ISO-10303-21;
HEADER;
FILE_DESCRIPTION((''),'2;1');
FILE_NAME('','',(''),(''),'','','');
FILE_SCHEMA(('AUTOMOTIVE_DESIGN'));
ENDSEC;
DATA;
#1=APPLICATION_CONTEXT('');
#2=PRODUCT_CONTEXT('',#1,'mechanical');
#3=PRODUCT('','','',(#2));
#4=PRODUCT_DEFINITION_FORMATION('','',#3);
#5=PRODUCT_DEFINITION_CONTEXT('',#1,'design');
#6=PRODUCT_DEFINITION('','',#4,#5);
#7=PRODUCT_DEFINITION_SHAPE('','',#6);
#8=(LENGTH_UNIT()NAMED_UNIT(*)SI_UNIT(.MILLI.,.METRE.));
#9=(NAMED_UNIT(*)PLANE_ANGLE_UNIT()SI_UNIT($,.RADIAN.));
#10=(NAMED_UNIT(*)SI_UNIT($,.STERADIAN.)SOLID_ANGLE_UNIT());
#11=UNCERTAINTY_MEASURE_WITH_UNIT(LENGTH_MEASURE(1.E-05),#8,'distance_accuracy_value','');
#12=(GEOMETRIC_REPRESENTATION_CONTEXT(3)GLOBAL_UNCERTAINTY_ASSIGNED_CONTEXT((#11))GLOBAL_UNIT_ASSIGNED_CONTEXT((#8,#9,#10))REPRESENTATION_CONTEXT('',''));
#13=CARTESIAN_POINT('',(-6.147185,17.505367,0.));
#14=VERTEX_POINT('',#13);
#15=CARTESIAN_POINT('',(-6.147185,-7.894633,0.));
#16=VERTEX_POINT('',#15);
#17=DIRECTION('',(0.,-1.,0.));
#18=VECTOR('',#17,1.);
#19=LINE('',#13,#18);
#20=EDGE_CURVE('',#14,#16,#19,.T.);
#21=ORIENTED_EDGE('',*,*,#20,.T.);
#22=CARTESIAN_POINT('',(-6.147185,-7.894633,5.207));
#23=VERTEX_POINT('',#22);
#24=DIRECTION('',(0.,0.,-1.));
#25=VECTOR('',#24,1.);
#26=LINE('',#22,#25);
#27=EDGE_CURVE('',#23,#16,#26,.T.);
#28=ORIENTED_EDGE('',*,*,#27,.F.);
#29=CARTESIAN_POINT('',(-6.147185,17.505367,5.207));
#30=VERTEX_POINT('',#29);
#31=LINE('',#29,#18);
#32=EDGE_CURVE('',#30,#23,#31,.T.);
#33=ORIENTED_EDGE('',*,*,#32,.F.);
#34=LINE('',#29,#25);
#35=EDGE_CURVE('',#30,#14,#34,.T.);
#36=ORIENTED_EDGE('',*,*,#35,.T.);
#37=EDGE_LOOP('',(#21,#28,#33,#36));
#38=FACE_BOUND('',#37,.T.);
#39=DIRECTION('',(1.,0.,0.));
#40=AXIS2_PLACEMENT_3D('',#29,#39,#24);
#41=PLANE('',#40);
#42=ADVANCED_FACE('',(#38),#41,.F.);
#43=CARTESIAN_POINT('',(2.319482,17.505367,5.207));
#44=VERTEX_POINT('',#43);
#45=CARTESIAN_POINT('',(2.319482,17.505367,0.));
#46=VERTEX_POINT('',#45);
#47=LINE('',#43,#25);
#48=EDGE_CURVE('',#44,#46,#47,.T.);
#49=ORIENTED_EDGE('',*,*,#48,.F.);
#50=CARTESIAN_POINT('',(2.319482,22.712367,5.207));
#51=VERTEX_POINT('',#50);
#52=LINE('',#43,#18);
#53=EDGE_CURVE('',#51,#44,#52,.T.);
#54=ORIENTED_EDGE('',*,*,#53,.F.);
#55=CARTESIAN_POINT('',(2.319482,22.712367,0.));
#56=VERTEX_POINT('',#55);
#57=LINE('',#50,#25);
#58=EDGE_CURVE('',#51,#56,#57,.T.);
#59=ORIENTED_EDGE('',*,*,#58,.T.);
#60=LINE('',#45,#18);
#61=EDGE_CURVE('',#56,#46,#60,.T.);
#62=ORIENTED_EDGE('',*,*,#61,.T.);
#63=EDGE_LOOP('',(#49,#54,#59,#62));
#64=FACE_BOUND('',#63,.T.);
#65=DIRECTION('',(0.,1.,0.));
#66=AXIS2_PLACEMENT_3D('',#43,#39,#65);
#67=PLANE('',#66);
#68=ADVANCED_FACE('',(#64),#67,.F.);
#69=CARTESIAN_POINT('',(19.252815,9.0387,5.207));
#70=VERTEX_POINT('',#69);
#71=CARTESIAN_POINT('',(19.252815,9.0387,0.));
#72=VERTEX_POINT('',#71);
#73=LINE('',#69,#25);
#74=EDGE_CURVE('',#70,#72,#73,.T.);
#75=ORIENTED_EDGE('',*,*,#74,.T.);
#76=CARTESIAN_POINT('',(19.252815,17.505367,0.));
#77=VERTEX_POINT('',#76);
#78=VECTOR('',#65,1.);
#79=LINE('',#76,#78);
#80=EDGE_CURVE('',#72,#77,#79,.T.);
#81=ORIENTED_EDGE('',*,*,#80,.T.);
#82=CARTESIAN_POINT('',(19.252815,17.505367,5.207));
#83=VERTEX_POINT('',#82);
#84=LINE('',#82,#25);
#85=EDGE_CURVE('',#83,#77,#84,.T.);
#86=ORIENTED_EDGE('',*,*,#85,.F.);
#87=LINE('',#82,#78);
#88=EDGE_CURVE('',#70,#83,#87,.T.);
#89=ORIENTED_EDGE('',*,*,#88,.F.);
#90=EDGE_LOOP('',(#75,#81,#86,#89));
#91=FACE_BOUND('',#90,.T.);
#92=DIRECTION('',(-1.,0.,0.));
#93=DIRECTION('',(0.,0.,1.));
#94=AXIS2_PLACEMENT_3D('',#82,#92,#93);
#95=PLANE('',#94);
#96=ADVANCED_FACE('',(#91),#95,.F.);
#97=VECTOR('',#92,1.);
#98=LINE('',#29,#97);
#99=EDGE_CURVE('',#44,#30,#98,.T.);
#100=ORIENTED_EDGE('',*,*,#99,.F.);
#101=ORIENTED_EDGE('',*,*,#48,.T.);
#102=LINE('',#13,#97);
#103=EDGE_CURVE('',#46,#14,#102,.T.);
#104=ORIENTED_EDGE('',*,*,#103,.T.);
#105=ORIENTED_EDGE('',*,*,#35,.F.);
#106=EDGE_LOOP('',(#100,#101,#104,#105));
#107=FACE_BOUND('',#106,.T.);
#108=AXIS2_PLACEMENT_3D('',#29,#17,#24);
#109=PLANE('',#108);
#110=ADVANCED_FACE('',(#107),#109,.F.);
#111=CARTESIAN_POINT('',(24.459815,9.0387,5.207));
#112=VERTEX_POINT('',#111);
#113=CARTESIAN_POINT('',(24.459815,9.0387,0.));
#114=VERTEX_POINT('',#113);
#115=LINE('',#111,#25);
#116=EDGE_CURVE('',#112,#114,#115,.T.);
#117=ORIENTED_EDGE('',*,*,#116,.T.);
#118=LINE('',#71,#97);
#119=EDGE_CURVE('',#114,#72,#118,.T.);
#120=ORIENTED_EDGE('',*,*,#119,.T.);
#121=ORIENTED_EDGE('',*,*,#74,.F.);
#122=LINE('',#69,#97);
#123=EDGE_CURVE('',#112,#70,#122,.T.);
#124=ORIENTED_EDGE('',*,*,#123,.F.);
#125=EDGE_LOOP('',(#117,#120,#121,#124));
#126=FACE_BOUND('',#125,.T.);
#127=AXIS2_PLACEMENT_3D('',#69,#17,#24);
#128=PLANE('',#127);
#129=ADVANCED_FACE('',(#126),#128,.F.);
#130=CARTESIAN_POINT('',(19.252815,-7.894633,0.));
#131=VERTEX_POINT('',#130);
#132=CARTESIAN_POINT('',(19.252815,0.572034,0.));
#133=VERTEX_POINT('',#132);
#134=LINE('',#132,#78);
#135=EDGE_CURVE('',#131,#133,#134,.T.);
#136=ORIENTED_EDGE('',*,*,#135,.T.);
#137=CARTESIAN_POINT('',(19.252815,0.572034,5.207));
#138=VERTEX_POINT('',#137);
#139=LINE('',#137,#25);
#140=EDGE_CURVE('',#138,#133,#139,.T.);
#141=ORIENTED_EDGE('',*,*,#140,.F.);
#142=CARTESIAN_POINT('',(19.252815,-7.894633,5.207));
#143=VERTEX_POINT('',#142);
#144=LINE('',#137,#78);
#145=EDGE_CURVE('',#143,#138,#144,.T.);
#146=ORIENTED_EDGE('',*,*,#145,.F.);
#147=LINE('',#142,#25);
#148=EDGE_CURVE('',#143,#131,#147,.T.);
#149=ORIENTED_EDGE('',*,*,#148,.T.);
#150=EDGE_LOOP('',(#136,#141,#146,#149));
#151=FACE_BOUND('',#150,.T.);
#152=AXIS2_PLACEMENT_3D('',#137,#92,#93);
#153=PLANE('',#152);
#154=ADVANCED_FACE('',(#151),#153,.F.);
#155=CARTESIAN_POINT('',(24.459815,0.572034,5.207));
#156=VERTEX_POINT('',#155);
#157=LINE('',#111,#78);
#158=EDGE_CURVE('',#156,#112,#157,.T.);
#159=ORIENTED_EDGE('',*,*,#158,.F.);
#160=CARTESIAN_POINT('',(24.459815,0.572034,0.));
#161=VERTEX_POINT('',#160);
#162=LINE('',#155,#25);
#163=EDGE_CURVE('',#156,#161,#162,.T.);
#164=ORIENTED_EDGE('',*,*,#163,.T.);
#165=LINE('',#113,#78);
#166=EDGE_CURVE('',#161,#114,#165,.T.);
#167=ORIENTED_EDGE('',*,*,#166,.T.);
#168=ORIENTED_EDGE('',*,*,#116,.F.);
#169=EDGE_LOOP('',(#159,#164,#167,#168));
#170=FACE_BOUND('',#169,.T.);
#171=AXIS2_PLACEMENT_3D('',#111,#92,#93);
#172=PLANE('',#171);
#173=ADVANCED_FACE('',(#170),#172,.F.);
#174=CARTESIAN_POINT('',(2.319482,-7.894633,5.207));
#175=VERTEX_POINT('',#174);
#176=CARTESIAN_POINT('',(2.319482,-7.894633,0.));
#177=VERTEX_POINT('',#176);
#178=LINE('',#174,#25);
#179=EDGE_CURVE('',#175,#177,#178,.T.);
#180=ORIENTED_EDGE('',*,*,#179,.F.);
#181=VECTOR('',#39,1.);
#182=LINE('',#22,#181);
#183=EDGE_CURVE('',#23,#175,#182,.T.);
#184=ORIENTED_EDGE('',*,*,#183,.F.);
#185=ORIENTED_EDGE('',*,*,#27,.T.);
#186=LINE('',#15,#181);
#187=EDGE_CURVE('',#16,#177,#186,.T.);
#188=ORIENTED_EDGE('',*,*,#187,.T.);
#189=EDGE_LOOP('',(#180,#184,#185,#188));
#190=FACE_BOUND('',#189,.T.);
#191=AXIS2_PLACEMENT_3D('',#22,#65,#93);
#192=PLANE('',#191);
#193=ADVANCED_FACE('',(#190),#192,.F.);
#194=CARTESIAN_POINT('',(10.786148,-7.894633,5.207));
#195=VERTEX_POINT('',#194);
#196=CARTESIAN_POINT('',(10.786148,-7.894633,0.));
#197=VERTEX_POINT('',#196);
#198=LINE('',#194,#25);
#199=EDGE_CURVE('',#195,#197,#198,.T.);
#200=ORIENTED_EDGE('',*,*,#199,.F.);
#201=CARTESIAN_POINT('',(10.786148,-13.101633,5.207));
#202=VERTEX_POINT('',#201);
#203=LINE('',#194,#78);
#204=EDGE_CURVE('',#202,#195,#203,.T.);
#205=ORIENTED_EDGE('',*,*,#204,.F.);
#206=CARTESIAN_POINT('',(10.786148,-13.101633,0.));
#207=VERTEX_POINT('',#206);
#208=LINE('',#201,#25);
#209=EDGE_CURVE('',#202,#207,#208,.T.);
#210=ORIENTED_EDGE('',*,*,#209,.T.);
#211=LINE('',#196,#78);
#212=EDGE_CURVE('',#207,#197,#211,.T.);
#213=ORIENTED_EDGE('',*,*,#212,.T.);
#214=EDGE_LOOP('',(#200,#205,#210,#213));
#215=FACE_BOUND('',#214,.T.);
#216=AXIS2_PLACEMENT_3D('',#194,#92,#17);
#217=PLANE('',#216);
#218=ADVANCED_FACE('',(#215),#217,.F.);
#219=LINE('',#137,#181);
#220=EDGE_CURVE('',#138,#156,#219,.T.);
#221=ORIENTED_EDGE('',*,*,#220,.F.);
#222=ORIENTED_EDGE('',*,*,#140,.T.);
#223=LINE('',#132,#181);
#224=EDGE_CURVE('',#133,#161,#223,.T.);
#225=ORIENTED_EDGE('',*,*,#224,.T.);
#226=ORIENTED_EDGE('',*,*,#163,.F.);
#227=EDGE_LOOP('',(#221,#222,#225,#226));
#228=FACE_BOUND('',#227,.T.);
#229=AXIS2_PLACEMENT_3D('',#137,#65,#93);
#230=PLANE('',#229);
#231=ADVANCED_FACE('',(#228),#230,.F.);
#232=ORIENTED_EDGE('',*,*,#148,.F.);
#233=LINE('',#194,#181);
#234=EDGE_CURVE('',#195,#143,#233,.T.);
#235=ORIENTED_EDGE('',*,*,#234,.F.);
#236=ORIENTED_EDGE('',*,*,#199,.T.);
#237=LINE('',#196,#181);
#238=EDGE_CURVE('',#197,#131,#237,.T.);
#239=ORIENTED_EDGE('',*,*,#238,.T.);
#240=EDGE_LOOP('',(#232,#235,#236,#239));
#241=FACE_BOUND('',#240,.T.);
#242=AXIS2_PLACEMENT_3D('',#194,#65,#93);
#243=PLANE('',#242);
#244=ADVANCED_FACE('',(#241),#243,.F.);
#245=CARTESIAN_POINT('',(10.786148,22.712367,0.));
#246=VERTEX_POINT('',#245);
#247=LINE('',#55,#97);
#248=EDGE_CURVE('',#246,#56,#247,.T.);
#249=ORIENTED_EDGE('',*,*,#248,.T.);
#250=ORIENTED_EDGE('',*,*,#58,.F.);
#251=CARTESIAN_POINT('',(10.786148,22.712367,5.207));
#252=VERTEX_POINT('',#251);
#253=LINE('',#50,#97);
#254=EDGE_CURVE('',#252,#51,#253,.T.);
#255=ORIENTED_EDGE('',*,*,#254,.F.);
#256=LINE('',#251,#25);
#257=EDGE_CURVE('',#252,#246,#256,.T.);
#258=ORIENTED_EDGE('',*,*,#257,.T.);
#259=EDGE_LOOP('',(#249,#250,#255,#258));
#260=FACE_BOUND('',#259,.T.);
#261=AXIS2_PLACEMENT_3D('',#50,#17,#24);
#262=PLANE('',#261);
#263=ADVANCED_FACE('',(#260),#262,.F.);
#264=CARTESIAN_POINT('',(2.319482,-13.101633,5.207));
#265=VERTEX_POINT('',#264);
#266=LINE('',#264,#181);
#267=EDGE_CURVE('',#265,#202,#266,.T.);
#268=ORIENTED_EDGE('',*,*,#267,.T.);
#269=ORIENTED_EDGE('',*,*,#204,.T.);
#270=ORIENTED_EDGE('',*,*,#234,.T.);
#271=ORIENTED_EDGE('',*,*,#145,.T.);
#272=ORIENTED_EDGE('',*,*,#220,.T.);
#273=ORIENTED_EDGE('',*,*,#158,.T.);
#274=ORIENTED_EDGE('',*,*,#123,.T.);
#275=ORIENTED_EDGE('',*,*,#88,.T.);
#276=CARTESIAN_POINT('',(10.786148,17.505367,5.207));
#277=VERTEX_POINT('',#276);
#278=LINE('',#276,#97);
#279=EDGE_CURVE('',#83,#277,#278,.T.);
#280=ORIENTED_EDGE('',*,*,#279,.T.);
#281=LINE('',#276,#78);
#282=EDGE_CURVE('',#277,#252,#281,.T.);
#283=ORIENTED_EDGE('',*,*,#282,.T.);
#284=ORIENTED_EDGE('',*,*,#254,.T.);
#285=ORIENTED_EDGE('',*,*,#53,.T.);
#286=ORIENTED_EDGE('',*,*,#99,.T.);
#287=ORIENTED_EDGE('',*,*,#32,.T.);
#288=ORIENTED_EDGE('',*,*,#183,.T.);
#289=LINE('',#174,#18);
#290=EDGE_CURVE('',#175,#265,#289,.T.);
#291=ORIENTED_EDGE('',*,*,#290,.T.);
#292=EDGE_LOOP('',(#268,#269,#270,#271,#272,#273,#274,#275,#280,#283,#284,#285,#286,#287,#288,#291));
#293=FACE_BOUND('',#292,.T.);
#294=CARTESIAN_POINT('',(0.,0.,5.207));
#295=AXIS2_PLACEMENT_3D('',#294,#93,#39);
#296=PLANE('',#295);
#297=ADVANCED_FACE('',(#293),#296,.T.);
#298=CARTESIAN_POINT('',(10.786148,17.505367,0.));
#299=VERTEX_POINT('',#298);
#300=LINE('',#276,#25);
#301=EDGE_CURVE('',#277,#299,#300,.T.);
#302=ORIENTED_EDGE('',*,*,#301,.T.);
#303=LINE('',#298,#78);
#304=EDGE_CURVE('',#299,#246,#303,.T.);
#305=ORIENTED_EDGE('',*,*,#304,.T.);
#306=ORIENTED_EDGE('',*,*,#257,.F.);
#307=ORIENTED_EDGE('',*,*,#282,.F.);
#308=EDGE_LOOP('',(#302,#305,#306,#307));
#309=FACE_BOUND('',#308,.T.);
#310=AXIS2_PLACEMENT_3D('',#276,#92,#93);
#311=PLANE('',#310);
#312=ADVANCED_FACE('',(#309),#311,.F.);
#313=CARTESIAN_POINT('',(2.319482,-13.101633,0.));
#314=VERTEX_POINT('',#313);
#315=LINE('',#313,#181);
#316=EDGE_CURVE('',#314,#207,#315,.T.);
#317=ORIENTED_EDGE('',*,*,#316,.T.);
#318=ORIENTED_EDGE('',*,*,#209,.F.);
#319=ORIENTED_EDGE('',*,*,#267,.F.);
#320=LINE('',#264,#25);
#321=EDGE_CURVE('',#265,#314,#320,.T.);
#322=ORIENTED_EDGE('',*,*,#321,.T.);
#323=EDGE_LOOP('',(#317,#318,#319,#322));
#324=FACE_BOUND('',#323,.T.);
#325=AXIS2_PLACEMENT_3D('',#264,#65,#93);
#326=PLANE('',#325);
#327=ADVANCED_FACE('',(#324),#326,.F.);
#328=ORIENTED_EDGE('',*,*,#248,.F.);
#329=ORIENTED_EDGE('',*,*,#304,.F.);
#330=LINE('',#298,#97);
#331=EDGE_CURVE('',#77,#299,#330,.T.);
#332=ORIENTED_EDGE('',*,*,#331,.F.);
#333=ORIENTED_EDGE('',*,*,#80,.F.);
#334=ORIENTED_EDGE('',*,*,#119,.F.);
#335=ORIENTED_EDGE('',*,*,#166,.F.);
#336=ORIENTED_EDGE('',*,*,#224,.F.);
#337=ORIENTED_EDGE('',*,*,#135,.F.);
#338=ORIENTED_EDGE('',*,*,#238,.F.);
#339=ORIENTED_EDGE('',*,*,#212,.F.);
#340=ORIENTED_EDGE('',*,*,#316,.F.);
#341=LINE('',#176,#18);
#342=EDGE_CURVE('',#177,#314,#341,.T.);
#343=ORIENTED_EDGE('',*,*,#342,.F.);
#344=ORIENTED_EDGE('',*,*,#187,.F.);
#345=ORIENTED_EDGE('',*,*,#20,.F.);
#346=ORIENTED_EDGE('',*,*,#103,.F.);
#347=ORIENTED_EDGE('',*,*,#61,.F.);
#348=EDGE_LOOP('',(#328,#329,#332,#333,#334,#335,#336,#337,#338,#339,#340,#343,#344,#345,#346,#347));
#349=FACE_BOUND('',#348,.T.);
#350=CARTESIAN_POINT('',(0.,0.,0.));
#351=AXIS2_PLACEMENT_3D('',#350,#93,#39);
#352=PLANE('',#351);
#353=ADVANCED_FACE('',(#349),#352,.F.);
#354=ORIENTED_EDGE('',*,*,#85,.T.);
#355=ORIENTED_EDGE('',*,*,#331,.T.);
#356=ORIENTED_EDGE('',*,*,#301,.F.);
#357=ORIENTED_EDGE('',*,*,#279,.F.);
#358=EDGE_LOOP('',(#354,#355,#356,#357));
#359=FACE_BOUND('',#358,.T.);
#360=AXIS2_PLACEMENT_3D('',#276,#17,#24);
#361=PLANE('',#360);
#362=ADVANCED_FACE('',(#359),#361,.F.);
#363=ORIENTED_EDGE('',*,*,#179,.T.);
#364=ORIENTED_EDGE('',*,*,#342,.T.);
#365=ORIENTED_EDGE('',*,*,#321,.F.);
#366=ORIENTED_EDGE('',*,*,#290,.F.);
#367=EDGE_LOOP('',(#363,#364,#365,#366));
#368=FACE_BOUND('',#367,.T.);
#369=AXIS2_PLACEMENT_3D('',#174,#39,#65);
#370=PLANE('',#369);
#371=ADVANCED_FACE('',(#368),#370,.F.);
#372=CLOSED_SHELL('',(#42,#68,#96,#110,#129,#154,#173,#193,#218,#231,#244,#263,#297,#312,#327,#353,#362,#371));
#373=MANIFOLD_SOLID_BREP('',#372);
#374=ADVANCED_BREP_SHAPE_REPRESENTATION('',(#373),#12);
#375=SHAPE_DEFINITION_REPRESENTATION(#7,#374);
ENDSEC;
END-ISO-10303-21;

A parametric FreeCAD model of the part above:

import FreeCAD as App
import Part
import Sketcher
Q = App.Units.Quantity


def add_polygon(sketch, points):
    """Adds a closed chain of lines whose ends are joined by coincident constraints."""
    first, n = sketch.GeometryCount, len(points)
    for a, b in zip(points, points[1:] + points[:1]):
        sketch.addGeometry(Part.LineSegment(App.Vector(*a, 0), App.Vector(*b, 0)), False)
    for i in range(n):
        sketch.addConstraint(Sketcher.Constraint("Coincident", first + i, 2, first + (i + 1) % n, 1))

doc = App.newDocument("Part")
body = doc.addObject("PartDesign::Body", "Body")

sketch1 = body.newObject("Sketcher::SketchObject", "Sketch")
sketch1.AttachmentSupport = (doc.getObject("XY_Plane"), [""])
sketch1.MapMode = "FlatFace"
add_polygon(sketch1, [(19, 18), (11, 18), (11, 23), (2, 23), (2, 18), (-6, 18), (-6, -8), (2, -8), (2, -13), (11, -13), (11, -8), (19, -8), (19, 1), (24, 1), (24, 9), (19, 9)])
sketch1.addConstraint(Sketcher.Constraint("Horizontal", 0))
sketch1.addConstraint(Sketcher.Constraint("Vertical", 1))
sketch1.addConstraint(Sketcher.Constraint("Horizontal", 2))
sketch1.addConstraint(Sketcher.Constraint("Vertical", 3))
sketch1.addConstraint(Sketcher.Constraint("Horizontal", 4))
sketch1.addConstraint(Sketcher.Constraint("Vertical", 5))
sketch1.addConstraint(Sketcher.Constraint("Horizontal", 6))
sketch1.addConstraint(Sketcher.Constraint("Vertical", 7))
sketch1.addConstraint(Sketcher.Constraint("Horizontal", 8))
sketch1.addConstraint(Sketcher.Constraint("Vertical", 9))
sketch1.addConstraint(Sketcher.Constraint("Horizontal", 10))
sketch1.addConstraint(Sketcher.Constraint("Vertical", 11))
sketch1.addConstraint(Sketcher.Constraint("Horizontal", 12))
sketch1.addConstraint(Sketcher.Constraint("Vertical", 13))
sketch1.addConstraint(Sketcher.Constraint("Horizontal", 14))
sketch1.addConstraint(Sketcher.Constraint("Vertical", 15))
sketch1.addConstraint(Sketcher.Constraint("Horizontal", 0, 2, 3, 2))
sketch1.addConstraint(Sketcher.Constraint("Horizontal", 6, 2, 9, 2))
sketch1.addConstraint(Sketcher.Constraint("Vertical", 3, 2, 6, 2))
sketch1.addConstraint(Sketcher.Constraint("Vertical", 1, 2, 8, 2))
sketch1.addConstraint(Sketcher.Constraint("Vertical", 11, 2, 14, 2))
sketch1.addConstraint(Sketcher.Constraint("Equal", 0, 2))
sketch1.addConstraint(Sketcher.Constraint("Equal", 2, 4))
sketch1.addConstraint(Sketcher.Constraint("Equal", 14, 1))
sketch1.addConstraint(Sketcher.Constraint("Equal", 3, 7))
sketch1.addConstraint(Sketcher.Constraint("Equal", 10, 11))
sketch1.addConstraint(Sketcher.Constraint("Equal", 11, 13))
sketch1.addConstraint(Sketcher.Constraint("Equal", 13, 15))
sketch1.addConstraint(Sketcher.Constraint("DistanceY", 5, 2, 5, 1, Q("1 in")))
sketch1.addConstraint(Sketcher.Constraint("DistanceX", 12, 1, 12, 2, Q("0.205 in")))
sketch1.addConstraint(Sketcher.Constraint("DistanceY", -1, 1, 13, 2, Q("9.0387 mm")))
sketch1.addConstraint(Sketcher.Constraint("DistanceX", -1, 1, 0, 2, Q("10.786148 mm")))
pad1 = body.newObject("PartDesign::Pad", "Pad")
pad1.Profile = sketch1
pad1.Length = Q("0.205 in")

doc.recompute()
